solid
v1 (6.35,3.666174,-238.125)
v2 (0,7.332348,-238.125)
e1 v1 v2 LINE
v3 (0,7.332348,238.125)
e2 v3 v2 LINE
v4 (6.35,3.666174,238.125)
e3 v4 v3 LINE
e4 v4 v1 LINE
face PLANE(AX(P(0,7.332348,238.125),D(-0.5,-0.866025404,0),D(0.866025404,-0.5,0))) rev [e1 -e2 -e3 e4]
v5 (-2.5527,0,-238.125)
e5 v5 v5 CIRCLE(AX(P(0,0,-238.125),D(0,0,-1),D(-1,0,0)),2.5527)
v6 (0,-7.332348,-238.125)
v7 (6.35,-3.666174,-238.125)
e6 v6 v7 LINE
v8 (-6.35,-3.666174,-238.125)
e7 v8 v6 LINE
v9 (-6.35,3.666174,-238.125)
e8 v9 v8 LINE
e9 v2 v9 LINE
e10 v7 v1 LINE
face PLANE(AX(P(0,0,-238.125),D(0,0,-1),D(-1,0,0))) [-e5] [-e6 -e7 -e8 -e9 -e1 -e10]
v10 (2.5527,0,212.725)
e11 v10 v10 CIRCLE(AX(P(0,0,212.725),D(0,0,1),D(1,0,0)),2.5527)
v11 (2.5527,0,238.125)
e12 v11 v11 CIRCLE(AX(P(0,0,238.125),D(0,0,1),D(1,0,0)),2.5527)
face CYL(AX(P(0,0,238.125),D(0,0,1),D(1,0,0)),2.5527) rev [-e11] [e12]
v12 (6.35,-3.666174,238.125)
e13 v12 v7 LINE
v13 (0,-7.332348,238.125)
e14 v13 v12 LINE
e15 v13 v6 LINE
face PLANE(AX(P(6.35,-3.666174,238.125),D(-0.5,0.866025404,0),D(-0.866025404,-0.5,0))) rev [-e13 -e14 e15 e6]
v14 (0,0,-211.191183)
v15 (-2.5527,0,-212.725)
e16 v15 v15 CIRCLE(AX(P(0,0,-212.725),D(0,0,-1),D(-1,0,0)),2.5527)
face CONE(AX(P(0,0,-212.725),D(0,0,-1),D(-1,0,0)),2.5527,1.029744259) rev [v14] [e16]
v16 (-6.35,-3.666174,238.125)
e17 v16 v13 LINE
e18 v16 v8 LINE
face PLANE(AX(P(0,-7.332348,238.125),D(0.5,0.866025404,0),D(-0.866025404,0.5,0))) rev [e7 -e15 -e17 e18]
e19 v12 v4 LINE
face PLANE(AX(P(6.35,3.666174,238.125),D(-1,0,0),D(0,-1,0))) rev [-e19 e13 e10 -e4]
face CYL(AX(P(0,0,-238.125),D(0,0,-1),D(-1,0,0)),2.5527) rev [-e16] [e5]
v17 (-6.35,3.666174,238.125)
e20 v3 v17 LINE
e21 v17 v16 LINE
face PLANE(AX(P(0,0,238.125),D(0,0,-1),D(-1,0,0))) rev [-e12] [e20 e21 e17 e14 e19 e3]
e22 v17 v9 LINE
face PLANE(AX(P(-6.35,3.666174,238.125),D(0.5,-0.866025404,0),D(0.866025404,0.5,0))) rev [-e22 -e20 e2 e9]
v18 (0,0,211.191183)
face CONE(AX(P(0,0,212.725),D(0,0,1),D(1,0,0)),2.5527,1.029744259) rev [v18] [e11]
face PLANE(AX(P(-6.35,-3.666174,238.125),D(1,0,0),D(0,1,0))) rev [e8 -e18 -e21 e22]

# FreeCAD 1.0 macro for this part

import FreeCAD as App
import Part
import Sketcher
Q = App.Units.Quantity


def add_polygon(sketch, points):
    """Adds a closed chain of lines whose ends are joined by coincident constraints."""
    first, n = sketch.GeometryCount, len(points)
    for a, b in zip(points, points[1:] + points[:1]):
        sketch.addGeometry(Part.LineSegment(App.Vector(*a, 0), App.Vector(*b, 0)), False)
    for i in range(n):
        sketch.addConstraint(Sketcher.Constraint("Coincident", first + i, 2, first + (i + 1) % n, 1))

doc = App.newDocument("Part")
body = doc.addObject("PartDesign::Body", "Body")

# Sketch on XY plane
sketch1 = body.newObject("Sketcher::SketchObject", "Sketch")
sketch1.AttachmentSupport = (doc.getObject("XY_Plane"), [""])
sketch1.MapMode = "FlatFace"
add_polygon(sketch1, [(6, 4), (0, 7), (-6, 4), (-6, -4), (0, -7), (6, -4)])  # lines 0-5
sketch1.addConstraint(Sketcher.Constraint("Vertical", 2))
sketch1.addConstraint(Sketcher.Constraint("Vertical", 5))
sketch1.addConstraint(Sketcher.Constraint("Symmetric", 0, 2, 3, 2, -1, 1))
sketch1.addConstraint(Sketcher.Constraint("Symmetric", 1, 2, 4, 2, -1, 1))
sketch1.addConstraint(Sketcher.Constraint("PointOnObject", 0, 2, -2))
sketch1.addConstraint(Sketcher.Constraint("Parallel", 0, 3))
sketch1.addConstraint(Sketcher.Constraint("Horizontal", 2, 2, 4, 2))
sketch1.addConstraint(Sketcher.Constraint("Angle", 0, Q("150 deg")))
sketch1.addConstraint(Sketcher.Constraint("DistanceX", 2, 2, 4, 2, Q("0.5 in")))
sketch1.addConstraint(Sketcher.Constraint("DistanceY", 2, 2, 2, 1, 7.332348))
pad1 = body.newObject("PartDesign::Pad", "Pad")
pad1.Profile = sketch1
pad1.Length = Q("18.75 in")
pad1.Midplane = True

# Sketch on XY plane
sketch2 = body.newObject("Sketcher::SketchObject", "Sketch001")
sketch2.AttachmentSupport = (doc.getObject("XY_Plane"), [""])
sketch2.MapMode = "FlatFace"
sketch2.AttachmentOffset = App.Placement(App.Vector(0, 0, 9.375 * 25.4), App.Rotation())
sketch2.addGeometry(Part.Circle(App.Vector(0, 0, 0), App.Vector(0, 0, 1), 2.6), False)
sketch2.addConstraint(Sketcher.Constraint("Coincident", 0, 3, -1, 1))
sketch2.addConstraint(Sketcher.Constraint("Diameter", 0, Q("0.201 in")))
doc.recompute()
hole = body.newObject("PartDesign::Hole", "Hole")
hole.Profile = sketch2
hole.ThreadType = "None"
hole.Diameter = Q("0.201 in")
hole.DepthType = "Dimension"
hole.Depth = Q("1 in")
hole.DrillPoint = "Angled"
hole.DrillPointAngle = 118

# Sketch on XY plane
sketch3 = body.newObject("Sketcher::SketchObject", "Sketch002")
sketch3.AttachmentSupport = (doc.getObject("XY_Plane"), [""])
sketch3.MapMode = "FlatFace"
sketch3.AttachmentOffset = App.Placement(App.Vector(0, 0, -9.375 * 25.4), App.Rotation())
sketch3.addGeometry(Part.Circle(App.Vector(0, 0, 0), App.Vector(0, 0, 1), 2.6), False)
sketch3.addConstraint(Sketcher.Constraint("Coincident", 0, 3, -1, 1))
sketch3.addConstraint(Sketcher.Constraint("Diameter", 0, Q("0.201 in")))
doc.recompute()
hole2 = body.newObject("PartDesign::Hole", "Hole001")
hole2.Profile = sketch3
hole2.ThreadType = "None"
hole2.Diameter = Q("0.201 in")
hole2.DepthType = "Dimension"
hole2.Depth = Q("1 in")
hole2.DrillPoint = "Angled"
hole2.DrillPointAngle = 118
hole2.Reversed = True

doc.recompute()
